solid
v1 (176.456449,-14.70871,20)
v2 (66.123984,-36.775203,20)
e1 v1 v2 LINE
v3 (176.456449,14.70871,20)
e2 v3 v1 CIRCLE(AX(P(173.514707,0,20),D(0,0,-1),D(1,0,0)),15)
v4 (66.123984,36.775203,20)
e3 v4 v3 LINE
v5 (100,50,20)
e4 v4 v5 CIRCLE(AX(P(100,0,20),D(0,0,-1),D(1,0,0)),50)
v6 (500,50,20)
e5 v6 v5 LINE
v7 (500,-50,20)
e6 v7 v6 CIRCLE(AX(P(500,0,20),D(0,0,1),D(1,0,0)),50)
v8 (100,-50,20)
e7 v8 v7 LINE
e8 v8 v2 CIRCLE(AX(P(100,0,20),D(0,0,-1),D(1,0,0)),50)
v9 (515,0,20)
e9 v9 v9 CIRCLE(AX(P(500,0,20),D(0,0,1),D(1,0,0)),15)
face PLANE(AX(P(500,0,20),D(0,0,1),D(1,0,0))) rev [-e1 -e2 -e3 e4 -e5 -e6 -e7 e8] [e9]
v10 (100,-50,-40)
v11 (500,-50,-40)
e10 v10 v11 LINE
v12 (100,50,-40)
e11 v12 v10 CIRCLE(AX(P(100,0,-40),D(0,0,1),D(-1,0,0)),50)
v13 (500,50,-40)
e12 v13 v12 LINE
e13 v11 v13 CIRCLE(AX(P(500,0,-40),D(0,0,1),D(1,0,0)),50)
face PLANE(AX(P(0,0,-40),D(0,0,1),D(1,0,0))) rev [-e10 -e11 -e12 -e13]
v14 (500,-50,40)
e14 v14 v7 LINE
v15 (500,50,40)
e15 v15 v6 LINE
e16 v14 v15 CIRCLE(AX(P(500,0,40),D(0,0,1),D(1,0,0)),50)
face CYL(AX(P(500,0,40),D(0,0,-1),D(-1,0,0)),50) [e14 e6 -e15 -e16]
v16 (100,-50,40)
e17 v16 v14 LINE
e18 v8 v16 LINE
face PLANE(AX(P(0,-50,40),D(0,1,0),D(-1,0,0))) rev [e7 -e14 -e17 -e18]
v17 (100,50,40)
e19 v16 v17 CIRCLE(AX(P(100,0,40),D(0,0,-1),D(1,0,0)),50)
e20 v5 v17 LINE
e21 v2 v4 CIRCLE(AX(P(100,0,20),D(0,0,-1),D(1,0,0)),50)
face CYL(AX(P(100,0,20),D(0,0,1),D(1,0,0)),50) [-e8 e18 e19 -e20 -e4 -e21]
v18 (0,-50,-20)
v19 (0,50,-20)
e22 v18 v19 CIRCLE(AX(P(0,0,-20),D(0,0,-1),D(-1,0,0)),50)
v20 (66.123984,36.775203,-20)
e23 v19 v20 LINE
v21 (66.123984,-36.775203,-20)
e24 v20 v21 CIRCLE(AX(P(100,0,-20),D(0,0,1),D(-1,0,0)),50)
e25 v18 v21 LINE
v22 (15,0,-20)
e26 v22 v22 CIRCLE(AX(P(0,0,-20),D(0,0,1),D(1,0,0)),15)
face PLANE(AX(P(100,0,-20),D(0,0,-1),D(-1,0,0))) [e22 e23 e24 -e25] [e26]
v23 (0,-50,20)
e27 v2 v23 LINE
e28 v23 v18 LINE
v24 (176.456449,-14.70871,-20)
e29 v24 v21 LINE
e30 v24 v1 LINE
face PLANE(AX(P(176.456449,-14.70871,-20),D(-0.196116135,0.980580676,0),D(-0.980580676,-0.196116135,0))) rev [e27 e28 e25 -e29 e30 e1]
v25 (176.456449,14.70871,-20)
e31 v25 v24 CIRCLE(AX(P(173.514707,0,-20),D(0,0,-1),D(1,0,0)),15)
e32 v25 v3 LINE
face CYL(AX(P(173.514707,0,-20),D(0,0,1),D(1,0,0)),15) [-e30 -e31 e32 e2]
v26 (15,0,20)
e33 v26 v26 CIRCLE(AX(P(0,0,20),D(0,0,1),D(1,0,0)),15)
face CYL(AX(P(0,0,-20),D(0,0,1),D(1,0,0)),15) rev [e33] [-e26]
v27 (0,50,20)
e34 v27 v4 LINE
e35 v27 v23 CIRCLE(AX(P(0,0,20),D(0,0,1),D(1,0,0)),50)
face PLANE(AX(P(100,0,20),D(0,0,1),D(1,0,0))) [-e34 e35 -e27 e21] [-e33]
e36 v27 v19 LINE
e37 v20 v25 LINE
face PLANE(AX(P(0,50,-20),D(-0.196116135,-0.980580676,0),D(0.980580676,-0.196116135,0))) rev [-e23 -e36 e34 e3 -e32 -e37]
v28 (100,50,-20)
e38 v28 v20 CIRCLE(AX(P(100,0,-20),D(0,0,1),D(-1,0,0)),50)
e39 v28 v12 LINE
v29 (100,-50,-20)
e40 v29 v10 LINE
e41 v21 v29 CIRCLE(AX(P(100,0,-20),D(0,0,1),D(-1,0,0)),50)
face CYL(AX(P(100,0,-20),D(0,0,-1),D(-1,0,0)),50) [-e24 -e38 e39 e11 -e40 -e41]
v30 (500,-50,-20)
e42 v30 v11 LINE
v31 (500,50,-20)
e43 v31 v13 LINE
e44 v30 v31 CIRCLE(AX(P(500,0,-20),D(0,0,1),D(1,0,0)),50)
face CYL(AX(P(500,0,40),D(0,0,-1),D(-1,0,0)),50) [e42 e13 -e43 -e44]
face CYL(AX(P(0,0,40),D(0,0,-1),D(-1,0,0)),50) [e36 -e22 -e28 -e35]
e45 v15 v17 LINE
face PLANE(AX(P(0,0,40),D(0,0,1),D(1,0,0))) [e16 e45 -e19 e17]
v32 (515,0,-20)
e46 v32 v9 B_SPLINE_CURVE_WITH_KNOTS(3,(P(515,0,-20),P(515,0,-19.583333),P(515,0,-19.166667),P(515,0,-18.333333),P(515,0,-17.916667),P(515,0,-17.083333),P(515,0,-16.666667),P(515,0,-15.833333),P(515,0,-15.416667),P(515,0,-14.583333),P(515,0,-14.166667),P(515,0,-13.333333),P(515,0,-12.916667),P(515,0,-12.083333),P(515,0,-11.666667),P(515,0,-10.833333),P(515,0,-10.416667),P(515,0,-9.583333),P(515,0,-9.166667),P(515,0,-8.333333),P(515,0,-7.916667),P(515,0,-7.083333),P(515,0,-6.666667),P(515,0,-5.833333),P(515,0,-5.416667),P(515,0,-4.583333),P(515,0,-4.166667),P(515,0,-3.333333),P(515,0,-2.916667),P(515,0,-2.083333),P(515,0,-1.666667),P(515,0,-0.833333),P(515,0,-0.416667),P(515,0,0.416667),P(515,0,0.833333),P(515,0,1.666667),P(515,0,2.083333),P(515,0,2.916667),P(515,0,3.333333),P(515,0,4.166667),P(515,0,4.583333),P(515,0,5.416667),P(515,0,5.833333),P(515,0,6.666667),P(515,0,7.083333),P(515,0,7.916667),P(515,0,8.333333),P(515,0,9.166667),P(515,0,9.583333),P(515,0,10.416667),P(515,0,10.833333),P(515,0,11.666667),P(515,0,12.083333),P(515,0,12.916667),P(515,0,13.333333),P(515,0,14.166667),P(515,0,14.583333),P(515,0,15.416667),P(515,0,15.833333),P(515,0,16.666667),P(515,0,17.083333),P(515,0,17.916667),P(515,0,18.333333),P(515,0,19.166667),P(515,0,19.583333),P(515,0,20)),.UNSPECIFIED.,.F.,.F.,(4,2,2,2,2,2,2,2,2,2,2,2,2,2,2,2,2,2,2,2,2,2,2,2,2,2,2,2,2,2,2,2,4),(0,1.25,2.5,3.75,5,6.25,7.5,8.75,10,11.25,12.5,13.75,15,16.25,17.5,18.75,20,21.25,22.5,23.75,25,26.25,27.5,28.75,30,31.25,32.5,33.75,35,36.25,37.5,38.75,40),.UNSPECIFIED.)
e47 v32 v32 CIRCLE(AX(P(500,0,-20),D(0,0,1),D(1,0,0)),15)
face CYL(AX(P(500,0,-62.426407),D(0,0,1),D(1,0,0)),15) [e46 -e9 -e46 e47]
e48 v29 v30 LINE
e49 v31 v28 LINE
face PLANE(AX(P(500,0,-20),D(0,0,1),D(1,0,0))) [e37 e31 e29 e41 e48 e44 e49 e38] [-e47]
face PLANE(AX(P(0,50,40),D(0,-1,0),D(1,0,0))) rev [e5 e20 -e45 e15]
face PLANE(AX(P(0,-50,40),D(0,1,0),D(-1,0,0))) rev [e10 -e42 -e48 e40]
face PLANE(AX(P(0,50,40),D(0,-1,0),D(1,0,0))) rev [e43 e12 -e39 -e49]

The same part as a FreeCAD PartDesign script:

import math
import FreeCAD as App
import Part
import Sketcher

doc = App.newDocument("Part")
body = doc.addObject("PartDesign::Body", "Body")

sketch1 = doc.addObject("Sketcher::SketchObject", "Sketch")
body.addObject(sketch1)
sketch1.AttachmentSupport = (doc.XY_Plane, [""])
sketch1.MapMode = "FlatFace"
sketch1.addGeometry([
    Part.LineSegment(App.Vector(250, 50, 0), App.Vector(-250, 50, 0)),
    Part.ArcOfCircle(Part.Circle(App.Vector(-250, 0, 0), App.Vector(0, 0, 1), 50), math.radians(90), math.radians(270)),
    Part.LineSegment(App.Vector(-250, -50, 0), App.Vector(250, -50, 0)),
    Part.ArcOfCircle(Part.Circle(App.Vector(250, 0, 0), App.Vector(0, 0, 1), 50), math.radians(-90), math.radians(90)),
], False)
sketch1.addConstraint([
    Sketcher.Constraint("Tangent", 0, 2, 1, 1),
    Sketcher.Constraint("Tangent", 1, 2, 2, 1),
    Sketcher.Constraint("Tangent", 2, 2, 3, 1),
    Sketcher.Constraint("Tangent", 3, 2, 0, 1),
    Sketcher.Constraint("Horizontal", 0),
    Sketcher.Constraint("Horizontal", 2),
    Sketcher.Constraint("Symmetric", 1, 3, 3, 3, -1, 1),
    Sketcher.Constraint("Radius", 1, 50.0),
    Sketcher.Constraint("DistanceX", 0, 2, 0, 1, 500.0),
])
pad1 = doc.addObject("PartDesign::Pad", "Pad")
body.addObject(pad1)
pad1.Profile = sketch1
pad1.Length = 80
pad1.Midplane = True

sketch2 = doc.addObject("Sketcher::SketchObject", "Sketch001")
body.addObject(sketch2)
sketch2.AttachmentSupport = (doc.XY_Plane, [""])
sketch2.MapMode = "FlatFace"
sketch2.AttachmentOffset = App.Placement(App.Vector(0, 0, 40), App.Rotation())
sketch2.addGeometry([
    Part.LineSegment(App.Vector(-150, 50, 0), App.Vector(-250, 50, 0)),
    Part.ArcOfCircle(Part.Circle(App.Vector(-250, 0, 0), App.Vector(0, 0, 1), 50), math.radians(90), math.radians(270)),
    Part.LineSegment(App.Vector(-250, -50, 0), App.Vector(-150, -50, 0)),
    Part.ArcOfCircle(Part.Circle(App.Vector(-150, 0, 0), App.Vector(0, 0, 1), 50), math.radians(90), math.radians(270)),
], False)
sketch2.addConstraint([
    Sketcher.Constraint("Tangent", 0, 2, 1, 1),
    Sketcher.Constraint("Tangent", 1, 2, 2, 1),
    Sketcher.Constraint("Tangent", 2, 2, 3, 2),
    Sketcher.Constraint("Tangent", 3, 1, 0, 1),
    Sketcher.Constraint("Horizontal", 0),
    Sketcher.Constraint("Horizontal", 2),
    Sketcher.Constraint("PointOnObject", 1, 3, -1),
    Sketcher.Constraint("Radius", 1, 50.0),
    Sketcher.Constraint("DistanceX", 0, 2, 0, 1, 100.0),
    Sketcher.Constraint("DistanceX", 1, 3, -1, 1, 250.0),
])
pocket1 = doc.addObject("PartDesign::Pocket", "Pocket")
body.addObject(pocket1)
pocket1.Profile = sketch2
pocket1.Length = 20

sketch3 = doc.addObject("Sketcher::SketchObject", "Sketch002")
body.addObject(sketch3)
sketch3.AttachmentSupport = (doc.XY_Plane, [""])
sketch3.MapMode = "FlatFace"
sketch3.AttachmentOffset = App.Placement(App.Vector(0, 0, -20), App.Rotation())
sketch3.addGeometry([
    Part.LineSegment(App.Vector(-250, 50, 0), App.Vector(-150, 50, 0)),
    Part.ArcOfCircle(Part.Circle(App.Vector(-150, 0, 0), App.Vector(0, 0, 1), 50), math.radians(90), math.radians(270)),
    Part.LineSegment(App.Vector(-150, -50, 0), App.Vector(-250, -50, 0)),
    Part.ArcOfCircle(Part.Circle(App.Vector(-250, 0, 0), App.Vector(0, 0, 1), 50), math.radians(90), math.radians(270)),
], False)
sketch3.addConstraint([
    Sketcher.Constraint("Tangent", 0, 2, 1, 1),
    Sketcher.Constraint("Tangent", 1, 2, 2, 1),
    Sketcher.Constraint("Tangent", 2, 2, 3, 2),
    Sketcher.Constraint("Tangent", 3, 1, 0, 1),
    Sketcher.Constraint("Horizontal", 0),
    Sketcher.Constraint("Horizontal", 2),
    Sketcher.Constraint("PointOnObject", 1, 3, -1),
    Sketcher.Constraint("Radius", 1, 50.0),
    Sketcher.Constraint("DistanceX", 0, 1, 0, 2, 100.0),
    Sketcher.Constraint("DistanceX", 1, 3, -1, 1, 150.0),
])
pocket2 = doc.addObject("PartDesign::Pocket", "Pocket001")
body.addObject(pocket2)
pocket2.Profile = sketch3
pocket2.Length = 20

sketch4 = doc.addObject("Sketcher::SketchObject", "Sketch003")
body.addObject(sketch4)
sketch4.AttachmentSupport = (doc.XY_Plane, [""])
sketch4.MapMode = "FlatFace"
sketch4.AttachmentOffset = App.Placement(App.Vector(0, 0, 20), App.Rotation())
sketch4.addGeometry(Part.Circle(App.Vector(-250, 0, 0), App.Vector(0, 0, 1), 15), False)
sketch4.addConstraint([
    Sketcher.Constraint("PointOnObject", 0, 3, -1),
    Sketcher.Constraint("Diameter", 0, 30.0),
    Sketcher.Constraint("DistanceX", 0, 3, -1, 1, 250.0),
])
pocket3 = doc.addObject("PartDesign::Pocket", "Pocket002")
body.addObject(pocket3)
pocket3.Profile = sketch4
pocket3.Length = 40

sketch5 = doc.addObject("Sketcher::SketchObject", "Sketch004")
body.addObject(sketch5)
sketch5.AttachmentSupport = (doc.XY_Plane, [""])
sketch5.MapMode = "FlatFace"
sketch5.addGeometry([
    Part.LineSegment(App.Vector(-250, 50, 0), App.Vector(-73.543551, 14.70871, 0)),
    Part.ArcOfCircle(Part.Circle(App.Vector(-76.485293, 0, 0), App.Vector(0, 0, 1), 15), math.radians(-78.690068), math.radians(78.690068)),
    Part.LineSegment(App.Vector(-73.543551, -14.70871, 0), App.Vector(-250, -50, 0)),
    Part.LineSegment(App.Vector(-250, -50, 0), App.Vector(250, -50, 0)),
    Part.ArcOfCircle(Part.Circle(App.Vector(250, 0, 0), App.Vector(0, 0, 1), 50), math.radians(-90), math.radians(90)),
    Part.LineSegment(App.Vector(250, 50, 0), App.Vector(-250, 50, 0)),
], False)
sketch5.addConstraint([
    Sketcher.Constraint("Tangent", 0, 2, 1, 2),
    Sketcher.Constraint("Tangent", 1, 1, 2, 1),
    Sketcher.Constraint("Coincident", 2, 2, 3, 1),
    Sketcher.Constraint("Tangent", 3, 2, 4, 1),
    Sketcher.Constraint("Tangent", 4, 2, 5, 1),
    Sketcher.Constraint("Coincident", 5, 2, 0, 1),
    Sketcher.Constraint("Horizontal", 3),
    Sketcher.Constraint("Horizontal", 5),
    Sketcher.Constraint("Symmetric", 2, 2, 4, 2, -1, 1),
    Sketcher.Constraint("Symmetric", 0, 2, 1, 1, -1),
    Sketcher.Constraint("Radius", 1, 15.0),
    Sketcher.Constraint("Radius", 4, 50.0),
    Sketcher.Constraint("DistanceX", 3, 1, 3, 2, 500.0),
    Sketcher.Constraint("DistanceX", 0, 2, -1, 1, 73.543551),
])
pocket4 = doc.addObject("PartDesign::Pocket", "Pocket003")
body.addObject(pocket4)
pocket4.Profile = sketch5
pocket4.Length = 40
pocket4.Midplane = True

sketch6 = doc.addObject("Sketcher::SketchObject", "Sketch005")
body.addObject(sketch6)
sketch6.AttachmentSupport = (doc.XY_Plane, [""])
sketch6.MapMode = "FlatFace"
sketch6.AttachmentOffset = App.Placement(App.Vector(0, 0, 40), App.Rotation())
sketch6.addGeometry(Part.Circle(App.Vector(250, 0, 0), App.Vector(0, 0, 1), 15), False)
sketch6.addConstraint([
    Sketcher.Constraint("PointOnObject", 0, 3, -1),
    Sketcher.Constraint("Diameter", 0, 30.0),
    Sketcher.Constraint("DistanceX", -1, 1, 0, 3, 250.0),
])
pad2 = doc.addObject("PartDesign::Pad", "Pad001")
body.addObject(pad2)
pad2.Profile = sketch6
pad2.Length = 60
pad2.Reversed = True

sketch7 = doc.addObject("Sketcher::SketchObject", "Sketch006")
body.addObject(sketch7)
sketch7.AttachmentSupport = (doc.XY_Plane, [""])
sketch7.MapMode = "FlatFace"
sketch7.AttachmentOffset = App.Placement(App.Vector(0, 0, 40), App.Rotation())
sketch7.addGeometry(Part.Circle(App.Vector(250, 0, 0), App.Vector(0, 0, 1), 15), False)
sketch7.addConstraint([
    Sketcher.Constraint("PointOnObject", 0, 3, -1),
    Sketcher.Constraint("Diameter", 0, 30.0),
    Sketcher.Constraint("DistanceX", -1, 1, 0, 3, 250.0),
])
pad3 = doc.addObject("PartDesign::Pad", "Pad002")
body.addObject(pad3)
pad3.Profile = sketch7
pad3.Length = 80
pad3.Reversed = True
body2 = doc.addObject("PartDesign::Body", "Body001")
doc.recompute()

body.Placement = App.Placement(App.Vector(250, 0, 0), App.Rotation(App.Vector(0, 0, 1), 0))
boolean = doc.addObject("PartDesign::Boolean", "Boolean")
body2.addObject(boolean)
boolean.Type = "Fuse"
boolean.addObjects([body])

doc.recompute()
